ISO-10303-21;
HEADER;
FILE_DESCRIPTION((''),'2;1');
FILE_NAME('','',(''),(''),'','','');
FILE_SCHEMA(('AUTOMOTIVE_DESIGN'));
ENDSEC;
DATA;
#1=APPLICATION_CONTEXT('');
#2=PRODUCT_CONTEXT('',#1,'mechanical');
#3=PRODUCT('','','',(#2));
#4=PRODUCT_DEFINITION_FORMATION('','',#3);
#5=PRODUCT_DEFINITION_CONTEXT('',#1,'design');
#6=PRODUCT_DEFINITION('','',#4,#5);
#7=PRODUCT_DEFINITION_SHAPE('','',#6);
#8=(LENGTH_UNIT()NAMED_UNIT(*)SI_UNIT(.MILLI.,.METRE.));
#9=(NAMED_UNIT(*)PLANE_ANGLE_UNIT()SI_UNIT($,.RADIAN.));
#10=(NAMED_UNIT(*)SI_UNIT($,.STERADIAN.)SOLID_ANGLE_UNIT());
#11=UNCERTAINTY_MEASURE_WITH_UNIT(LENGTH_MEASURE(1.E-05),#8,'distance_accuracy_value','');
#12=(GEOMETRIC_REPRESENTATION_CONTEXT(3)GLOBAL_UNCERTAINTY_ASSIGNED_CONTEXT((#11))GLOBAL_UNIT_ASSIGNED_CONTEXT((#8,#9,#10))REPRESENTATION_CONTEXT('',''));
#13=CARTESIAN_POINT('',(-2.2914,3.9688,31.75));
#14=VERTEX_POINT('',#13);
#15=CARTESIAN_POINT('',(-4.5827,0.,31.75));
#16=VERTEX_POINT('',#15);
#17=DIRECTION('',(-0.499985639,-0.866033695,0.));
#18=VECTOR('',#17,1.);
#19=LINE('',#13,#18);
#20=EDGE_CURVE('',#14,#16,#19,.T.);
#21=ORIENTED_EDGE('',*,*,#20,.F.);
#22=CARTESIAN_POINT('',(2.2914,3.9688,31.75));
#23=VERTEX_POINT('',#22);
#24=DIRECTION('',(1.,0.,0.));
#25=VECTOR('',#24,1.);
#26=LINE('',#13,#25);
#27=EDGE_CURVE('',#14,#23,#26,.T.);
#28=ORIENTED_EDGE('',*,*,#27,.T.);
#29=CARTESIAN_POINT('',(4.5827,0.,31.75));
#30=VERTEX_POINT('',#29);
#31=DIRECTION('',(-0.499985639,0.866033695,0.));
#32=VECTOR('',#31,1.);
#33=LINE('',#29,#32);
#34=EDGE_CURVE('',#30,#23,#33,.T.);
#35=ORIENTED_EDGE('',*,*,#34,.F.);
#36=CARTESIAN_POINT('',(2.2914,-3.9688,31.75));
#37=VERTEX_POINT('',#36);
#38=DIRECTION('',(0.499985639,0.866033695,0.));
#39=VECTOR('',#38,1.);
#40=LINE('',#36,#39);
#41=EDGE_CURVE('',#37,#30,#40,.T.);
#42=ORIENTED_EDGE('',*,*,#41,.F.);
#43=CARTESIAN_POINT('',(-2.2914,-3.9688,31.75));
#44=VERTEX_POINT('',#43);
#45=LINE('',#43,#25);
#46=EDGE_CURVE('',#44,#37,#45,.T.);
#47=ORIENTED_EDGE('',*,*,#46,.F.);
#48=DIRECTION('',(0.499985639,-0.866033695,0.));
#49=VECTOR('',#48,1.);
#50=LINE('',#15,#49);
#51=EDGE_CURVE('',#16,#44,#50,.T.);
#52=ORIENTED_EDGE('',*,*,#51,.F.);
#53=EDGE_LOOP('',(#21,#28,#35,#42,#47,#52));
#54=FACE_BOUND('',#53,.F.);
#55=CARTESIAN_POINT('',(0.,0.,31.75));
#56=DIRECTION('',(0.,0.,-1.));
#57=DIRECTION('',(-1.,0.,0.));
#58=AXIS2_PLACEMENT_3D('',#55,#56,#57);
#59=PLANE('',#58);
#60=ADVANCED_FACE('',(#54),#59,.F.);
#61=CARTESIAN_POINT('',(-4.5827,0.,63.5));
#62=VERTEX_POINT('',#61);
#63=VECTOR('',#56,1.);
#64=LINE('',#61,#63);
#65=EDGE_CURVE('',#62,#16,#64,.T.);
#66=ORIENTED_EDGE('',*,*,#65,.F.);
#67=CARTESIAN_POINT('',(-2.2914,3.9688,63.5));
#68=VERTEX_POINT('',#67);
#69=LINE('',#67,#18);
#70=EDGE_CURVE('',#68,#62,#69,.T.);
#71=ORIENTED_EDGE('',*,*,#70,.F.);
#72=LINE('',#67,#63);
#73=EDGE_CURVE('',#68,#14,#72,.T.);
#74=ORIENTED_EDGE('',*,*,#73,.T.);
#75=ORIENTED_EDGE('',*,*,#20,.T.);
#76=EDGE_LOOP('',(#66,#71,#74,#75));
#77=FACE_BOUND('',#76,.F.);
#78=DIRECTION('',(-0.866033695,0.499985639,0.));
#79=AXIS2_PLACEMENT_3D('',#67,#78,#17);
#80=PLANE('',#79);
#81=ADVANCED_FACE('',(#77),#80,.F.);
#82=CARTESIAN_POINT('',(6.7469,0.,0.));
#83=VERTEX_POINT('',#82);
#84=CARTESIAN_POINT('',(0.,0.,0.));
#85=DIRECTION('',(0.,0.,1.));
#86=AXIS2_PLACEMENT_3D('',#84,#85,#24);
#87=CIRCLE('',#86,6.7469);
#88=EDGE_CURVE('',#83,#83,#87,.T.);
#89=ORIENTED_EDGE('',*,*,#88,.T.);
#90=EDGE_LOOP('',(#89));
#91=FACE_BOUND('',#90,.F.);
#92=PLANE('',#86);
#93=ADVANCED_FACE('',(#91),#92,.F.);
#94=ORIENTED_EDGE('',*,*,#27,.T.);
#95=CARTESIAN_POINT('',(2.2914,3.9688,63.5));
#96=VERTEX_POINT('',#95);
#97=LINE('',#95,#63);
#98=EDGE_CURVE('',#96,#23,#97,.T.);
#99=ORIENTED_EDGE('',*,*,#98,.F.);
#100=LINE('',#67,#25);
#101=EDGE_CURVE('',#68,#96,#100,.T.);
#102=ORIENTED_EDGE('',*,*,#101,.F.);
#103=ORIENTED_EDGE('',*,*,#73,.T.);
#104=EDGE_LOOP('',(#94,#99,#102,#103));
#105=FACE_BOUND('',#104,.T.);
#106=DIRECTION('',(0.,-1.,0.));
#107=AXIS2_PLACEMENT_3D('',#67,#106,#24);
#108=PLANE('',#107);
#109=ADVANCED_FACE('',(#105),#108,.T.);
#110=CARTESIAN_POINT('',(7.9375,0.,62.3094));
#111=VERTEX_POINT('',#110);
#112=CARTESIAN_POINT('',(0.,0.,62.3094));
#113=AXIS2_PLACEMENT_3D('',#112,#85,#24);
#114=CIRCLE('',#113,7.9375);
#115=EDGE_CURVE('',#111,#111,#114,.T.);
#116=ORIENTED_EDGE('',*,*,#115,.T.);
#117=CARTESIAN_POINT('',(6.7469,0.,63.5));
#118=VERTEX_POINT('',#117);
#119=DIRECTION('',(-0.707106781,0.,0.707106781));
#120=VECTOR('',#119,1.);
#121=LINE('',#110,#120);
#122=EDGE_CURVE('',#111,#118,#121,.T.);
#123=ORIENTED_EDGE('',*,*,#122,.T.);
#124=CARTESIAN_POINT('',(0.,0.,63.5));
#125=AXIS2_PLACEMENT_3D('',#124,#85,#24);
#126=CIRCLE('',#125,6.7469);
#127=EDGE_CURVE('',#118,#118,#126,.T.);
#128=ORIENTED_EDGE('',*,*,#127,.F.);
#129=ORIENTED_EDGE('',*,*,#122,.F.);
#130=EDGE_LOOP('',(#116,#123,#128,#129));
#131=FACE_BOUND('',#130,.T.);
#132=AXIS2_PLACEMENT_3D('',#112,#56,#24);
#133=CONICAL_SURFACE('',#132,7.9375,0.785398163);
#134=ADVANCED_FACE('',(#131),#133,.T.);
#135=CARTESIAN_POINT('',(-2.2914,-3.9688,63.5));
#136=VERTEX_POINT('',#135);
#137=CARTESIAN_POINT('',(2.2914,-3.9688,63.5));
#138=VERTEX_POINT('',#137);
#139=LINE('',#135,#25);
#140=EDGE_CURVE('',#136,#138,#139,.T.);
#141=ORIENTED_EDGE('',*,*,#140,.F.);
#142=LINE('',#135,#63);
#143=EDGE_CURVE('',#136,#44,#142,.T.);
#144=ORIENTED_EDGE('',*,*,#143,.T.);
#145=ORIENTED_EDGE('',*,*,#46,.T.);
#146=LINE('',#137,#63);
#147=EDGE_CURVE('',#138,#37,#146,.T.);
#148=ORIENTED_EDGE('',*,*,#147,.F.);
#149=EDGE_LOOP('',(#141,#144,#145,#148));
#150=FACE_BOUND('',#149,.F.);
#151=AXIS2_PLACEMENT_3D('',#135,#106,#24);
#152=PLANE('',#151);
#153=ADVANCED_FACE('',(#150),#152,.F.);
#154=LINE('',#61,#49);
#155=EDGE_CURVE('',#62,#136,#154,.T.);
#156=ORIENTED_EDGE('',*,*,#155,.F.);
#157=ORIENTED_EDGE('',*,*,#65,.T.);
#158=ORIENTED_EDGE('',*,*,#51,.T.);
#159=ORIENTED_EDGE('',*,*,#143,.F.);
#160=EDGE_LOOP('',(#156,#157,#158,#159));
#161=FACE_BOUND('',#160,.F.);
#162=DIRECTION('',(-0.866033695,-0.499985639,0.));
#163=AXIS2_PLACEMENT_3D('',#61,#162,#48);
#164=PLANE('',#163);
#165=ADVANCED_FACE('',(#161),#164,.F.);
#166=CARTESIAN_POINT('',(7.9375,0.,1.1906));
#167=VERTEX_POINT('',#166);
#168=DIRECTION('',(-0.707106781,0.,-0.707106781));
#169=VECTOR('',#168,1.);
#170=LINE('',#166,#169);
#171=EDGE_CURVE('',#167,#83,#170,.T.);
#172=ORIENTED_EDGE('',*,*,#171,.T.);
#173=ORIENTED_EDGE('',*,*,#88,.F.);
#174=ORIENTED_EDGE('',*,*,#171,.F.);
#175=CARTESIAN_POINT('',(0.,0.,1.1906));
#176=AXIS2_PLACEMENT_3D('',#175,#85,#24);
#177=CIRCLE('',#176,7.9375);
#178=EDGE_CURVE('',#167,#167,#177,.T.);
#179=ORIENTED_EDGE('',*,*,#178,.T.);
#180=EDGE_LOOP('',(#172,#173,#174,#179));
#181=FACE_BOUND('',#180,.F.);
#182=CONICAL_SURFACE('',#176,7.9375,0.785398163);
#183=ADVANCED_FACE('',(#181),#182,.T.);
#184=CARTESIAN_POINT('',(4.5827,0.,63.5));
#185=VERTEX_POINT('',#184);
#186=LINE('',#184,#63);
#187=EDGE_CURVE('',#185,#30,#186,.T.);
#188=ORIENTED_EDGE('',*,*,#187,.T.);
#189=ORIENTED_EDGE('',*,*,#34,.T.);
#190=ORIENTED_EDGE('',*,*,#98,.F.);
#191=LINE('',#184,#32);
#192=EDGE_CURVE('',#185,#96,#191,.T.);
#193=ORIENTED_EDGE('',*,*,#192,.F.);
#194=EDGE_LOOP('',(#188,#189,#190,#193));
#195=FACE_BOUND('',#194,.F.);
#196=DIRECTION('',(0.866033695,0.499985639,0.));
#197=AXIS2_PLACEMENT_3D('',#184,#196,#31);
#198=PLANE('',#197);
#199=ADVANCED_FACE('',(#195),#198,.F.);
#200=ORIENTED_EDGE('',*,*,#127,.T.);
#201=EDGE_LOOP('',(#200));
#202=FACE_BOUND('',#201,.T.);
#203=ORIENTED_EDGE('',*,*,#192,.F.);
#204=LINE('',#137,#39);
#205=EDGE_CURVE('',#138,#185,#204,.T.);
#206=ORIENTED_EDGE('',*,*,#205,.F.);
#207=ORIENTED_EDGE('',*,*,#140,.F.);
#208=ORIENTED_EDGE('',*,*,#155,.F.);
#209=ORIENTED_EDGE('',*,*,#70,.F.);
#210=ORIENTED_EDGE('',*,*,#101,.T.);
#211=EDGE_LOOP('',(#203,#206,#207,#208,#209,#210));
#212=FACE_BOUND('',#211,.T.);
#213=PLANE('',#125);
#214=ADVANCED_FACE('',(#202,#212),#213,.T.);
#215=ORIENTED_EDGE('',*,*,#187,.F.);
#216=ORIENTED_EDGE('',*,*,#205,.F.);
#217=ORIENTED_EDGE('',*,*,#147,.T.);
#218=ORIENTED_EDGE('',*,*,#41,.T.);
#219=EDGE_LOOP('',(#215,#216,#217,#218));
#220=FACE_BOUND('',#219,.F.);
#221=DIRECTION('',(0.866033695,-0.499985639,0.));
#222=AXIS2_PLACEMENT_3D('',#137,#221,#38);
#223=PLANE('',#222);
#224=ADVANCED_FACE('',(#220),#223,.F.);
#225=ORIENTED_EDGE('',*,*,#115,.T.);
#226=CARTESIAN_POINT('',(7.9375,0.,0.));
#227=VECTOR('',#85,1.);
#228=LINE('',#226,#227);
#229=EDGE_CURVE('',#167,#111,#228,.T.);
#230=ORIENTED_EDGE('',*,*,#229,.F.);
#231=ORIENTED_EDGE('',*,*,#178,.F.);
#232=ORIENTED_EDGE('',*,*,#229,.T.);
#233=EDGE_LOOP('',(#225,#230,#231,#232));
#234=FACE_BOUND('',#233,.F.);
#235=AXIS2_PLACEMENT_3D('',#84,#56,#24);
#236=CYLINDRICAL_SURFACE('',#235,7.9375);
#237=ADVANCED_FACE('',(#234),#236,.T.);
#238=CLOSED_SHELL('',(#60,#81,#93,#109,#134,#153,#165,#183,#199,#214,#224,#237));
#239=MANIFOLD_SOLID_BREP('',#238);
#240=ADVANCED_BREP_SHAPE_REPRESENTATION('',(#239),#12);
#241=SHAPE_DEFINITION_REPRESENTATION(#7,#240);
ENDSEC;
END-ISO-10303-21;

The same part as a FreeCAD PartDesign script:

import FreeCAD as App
import Part
import Sketcher
Q = App.Units.Quantity


def edges_at(feature, points):
    """Names of the edges that pass closest to the given points."""
    edges = feature.Shape.Edges
    near = lambda p: min(range(len(edges)), key=lambda i: edges[i].distToShape(Part.Vertex(*p))[0])
    return sorted({f"Edge{near(p) + 1}" for p in points})


def add_polygon(sketch, points):
    """Adds a closed chain of lines whose ends are joined by coincident constraints."""
    first, n = sketch.GeometryCount, len(points)
    for a, b in zip(points, points[1:] + points[:1]):
        sketch.addGeometry(Part.LineSegment(App.Vector(*a, 0), App.Vector(*b, 0)), False)
    for i in range(n):
        sketch.addConstraint(Sketcher.Constraint("Coincident", first + i, 2, first + (i + 1) % n, 1))

doc = App.newDocument("Part")
body = doc.addObject("PartDesign::Body", "Body")

sketch1 = doc.addObject("Sketcher::SketchObject", "Sketch")
body.addObject(sketch1)
sketch1.AttachmentSupport = (doc.XY_Plane, [""])
sketch1.MapMode = "FlatFace"
sketch1.addGeometry(Part.Circle(App.Vector(0, 0, 0), App.Vector(0, 0, 1), 8), False)
sketch1.addConstraint([
    Sketcher.Constraint("Coincident", 0, 3, -1, 1),
    Sketcher.Constraint("Diameter", 0, Q("0.625 in")),
])
pad1 = doc.addObject("PartDesign::Pad", "Pad")
body.addObject(pad1)
pad1.Profile = sketch1
pad1.Length = Q("2.5 in")
doc.recompute()

chamfer = doc.addObject("PartDesign::Chamfer", "Chamfer")
body.addObject(chamfer)
chamfer.Base = (pad1, edges_at(pad1, [(-7.938, 0, 0), (-7.938, 0, 63.5)]))
chamfer.Size = Q("0.046874 in")

sketch2 = doc.addObject("Sketcher::SketchObject", "Sketch001")
body.addObject(sketch2)
sketch2.AttachmentSupport = (doc.XY_Plane, [""])
sketch2.MapMode = "FlatFace"
sketch2.AttachmentOffset = App.Placement(App.Vector(0, 0, 2.5 * 25.4), App.Rotation())
add_polygon(sketch2, [(2.3, 4), (-2.3, 4), (-4.6, 0), (-2.3, -4), (2.3, -4), (4.6, 0)])
sketch2.addConstraint([
    Sketcher.Constraint("Horizontal", 0),
    Sketcher.Constraint("Horizontal", 3),
    Sketcher.Constraint("Symmetric", 0, 2, 3, 2, -1, 1),
    Sketcher.Constraint("Symmetric", 1, 2, 4, 2, -1, 1),
    Sketcher.Constraint("PointOnObject", 1, 2, -1),
    Sketcher.Constraint("Parallel", 2, 5),
    Sketcher.Constraint("Vertical", 0, 2, 2, 2),
    Sketcher.Constraint("Angle", 1, Q("-119.999 deg")),
    Sketcher.Constraint("DistanceY", -1, 1, 0, 2, Q("0.156252 in")),
    Sketcher.Constraint("DistanceX", 0, 2, 0, 1, 4.5828),
])
pocket1 = doc.addObject("PartDesign::Pocket", "Pocket")
body.addObject(pocket1)
pocket1.Profile = sketch2
pocket1.Length = Q("1.25 in")

doc.recompute()
